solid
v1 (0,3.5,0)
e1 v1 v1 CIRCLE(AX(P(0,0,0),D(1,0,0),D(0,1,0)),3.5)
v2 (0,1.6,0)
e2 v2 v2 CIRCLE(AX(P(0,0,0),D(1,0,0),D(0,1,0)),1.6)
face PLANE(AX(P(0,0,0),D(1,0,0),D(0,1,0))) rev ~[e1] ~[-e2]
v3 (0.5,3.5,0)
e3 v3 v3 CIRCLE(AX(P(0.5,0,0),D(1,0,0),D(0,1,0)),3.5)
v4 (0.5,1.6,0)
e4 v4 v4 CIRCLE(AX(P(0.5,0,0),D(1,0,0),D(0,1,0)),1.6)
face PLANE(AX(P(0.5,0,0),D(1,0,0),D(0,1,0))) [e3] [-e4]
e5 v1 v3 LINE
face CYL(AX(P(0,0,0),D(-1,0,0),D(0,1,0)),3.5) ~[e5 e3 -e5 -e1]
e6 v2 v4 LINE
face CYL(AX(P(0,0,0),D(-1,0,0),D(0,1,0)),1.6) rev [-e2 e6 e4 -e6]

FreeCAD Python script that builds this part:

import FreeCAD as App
import Part
import Sketcher
from FreeCAD import Vector

doc = App.newDocument("Part")
params = doc.addObject("Spreadsheet::Sheet", "Params")
for row, (alias, value) in enumerate([
    ("sketch1_diameter", "7 mm"),
    ("sketch1_diameter2", "3.2 mm"),
    ("pad1_length", "0.5 mm"),
], start=1):
    params.set(f"A{row}", alias)
    params.set(f"B{row}", "=" + value)
    params.setAlias(f"B{row}", alias)

body = doc.addObject("PartDesign::Body", "Body")

# Sketch on YZ plane
sketch1 = body.newObject("Sketcher::SketchObject", "Sketch")
sketch1.AttachmentSupport = (doc.getObject("YZ_Plane"), [""])
sketch1.MapMode = "FlatFace"
sketch1.addGeometry([
    Part.Circle(Vector(0, 0, 0), Vector(0, 0, 1), 3.5),
    Part.Circle(Vector(0, 0, 0), Vector(0, 0, 1), 1.6),
], False)
sketch1.addConstraint([
    Sketcher.Constraint("Coincident", 0, 3, -1, 1),
    Sketcher.Constraint("Coincident", 1, 3, -1, 1),
    Sketcher.Constraint("Diameter", 0, 7.0),
    Sketcher.Constraint("Diameter", 1, 3.2),
])
sketch1.setExpression("Constraints[2]", "Params.sketch1_diameter")
sketch1.setExpression("Constraints[3]", "Params.sketch1_diameter2")
pad1 = body.newObject("PartDesign::Pad", "Pad")
pad1.Profile = sketch1
pad1.setExpression("Length", "Params.pad1_length")

doc.recompute()
